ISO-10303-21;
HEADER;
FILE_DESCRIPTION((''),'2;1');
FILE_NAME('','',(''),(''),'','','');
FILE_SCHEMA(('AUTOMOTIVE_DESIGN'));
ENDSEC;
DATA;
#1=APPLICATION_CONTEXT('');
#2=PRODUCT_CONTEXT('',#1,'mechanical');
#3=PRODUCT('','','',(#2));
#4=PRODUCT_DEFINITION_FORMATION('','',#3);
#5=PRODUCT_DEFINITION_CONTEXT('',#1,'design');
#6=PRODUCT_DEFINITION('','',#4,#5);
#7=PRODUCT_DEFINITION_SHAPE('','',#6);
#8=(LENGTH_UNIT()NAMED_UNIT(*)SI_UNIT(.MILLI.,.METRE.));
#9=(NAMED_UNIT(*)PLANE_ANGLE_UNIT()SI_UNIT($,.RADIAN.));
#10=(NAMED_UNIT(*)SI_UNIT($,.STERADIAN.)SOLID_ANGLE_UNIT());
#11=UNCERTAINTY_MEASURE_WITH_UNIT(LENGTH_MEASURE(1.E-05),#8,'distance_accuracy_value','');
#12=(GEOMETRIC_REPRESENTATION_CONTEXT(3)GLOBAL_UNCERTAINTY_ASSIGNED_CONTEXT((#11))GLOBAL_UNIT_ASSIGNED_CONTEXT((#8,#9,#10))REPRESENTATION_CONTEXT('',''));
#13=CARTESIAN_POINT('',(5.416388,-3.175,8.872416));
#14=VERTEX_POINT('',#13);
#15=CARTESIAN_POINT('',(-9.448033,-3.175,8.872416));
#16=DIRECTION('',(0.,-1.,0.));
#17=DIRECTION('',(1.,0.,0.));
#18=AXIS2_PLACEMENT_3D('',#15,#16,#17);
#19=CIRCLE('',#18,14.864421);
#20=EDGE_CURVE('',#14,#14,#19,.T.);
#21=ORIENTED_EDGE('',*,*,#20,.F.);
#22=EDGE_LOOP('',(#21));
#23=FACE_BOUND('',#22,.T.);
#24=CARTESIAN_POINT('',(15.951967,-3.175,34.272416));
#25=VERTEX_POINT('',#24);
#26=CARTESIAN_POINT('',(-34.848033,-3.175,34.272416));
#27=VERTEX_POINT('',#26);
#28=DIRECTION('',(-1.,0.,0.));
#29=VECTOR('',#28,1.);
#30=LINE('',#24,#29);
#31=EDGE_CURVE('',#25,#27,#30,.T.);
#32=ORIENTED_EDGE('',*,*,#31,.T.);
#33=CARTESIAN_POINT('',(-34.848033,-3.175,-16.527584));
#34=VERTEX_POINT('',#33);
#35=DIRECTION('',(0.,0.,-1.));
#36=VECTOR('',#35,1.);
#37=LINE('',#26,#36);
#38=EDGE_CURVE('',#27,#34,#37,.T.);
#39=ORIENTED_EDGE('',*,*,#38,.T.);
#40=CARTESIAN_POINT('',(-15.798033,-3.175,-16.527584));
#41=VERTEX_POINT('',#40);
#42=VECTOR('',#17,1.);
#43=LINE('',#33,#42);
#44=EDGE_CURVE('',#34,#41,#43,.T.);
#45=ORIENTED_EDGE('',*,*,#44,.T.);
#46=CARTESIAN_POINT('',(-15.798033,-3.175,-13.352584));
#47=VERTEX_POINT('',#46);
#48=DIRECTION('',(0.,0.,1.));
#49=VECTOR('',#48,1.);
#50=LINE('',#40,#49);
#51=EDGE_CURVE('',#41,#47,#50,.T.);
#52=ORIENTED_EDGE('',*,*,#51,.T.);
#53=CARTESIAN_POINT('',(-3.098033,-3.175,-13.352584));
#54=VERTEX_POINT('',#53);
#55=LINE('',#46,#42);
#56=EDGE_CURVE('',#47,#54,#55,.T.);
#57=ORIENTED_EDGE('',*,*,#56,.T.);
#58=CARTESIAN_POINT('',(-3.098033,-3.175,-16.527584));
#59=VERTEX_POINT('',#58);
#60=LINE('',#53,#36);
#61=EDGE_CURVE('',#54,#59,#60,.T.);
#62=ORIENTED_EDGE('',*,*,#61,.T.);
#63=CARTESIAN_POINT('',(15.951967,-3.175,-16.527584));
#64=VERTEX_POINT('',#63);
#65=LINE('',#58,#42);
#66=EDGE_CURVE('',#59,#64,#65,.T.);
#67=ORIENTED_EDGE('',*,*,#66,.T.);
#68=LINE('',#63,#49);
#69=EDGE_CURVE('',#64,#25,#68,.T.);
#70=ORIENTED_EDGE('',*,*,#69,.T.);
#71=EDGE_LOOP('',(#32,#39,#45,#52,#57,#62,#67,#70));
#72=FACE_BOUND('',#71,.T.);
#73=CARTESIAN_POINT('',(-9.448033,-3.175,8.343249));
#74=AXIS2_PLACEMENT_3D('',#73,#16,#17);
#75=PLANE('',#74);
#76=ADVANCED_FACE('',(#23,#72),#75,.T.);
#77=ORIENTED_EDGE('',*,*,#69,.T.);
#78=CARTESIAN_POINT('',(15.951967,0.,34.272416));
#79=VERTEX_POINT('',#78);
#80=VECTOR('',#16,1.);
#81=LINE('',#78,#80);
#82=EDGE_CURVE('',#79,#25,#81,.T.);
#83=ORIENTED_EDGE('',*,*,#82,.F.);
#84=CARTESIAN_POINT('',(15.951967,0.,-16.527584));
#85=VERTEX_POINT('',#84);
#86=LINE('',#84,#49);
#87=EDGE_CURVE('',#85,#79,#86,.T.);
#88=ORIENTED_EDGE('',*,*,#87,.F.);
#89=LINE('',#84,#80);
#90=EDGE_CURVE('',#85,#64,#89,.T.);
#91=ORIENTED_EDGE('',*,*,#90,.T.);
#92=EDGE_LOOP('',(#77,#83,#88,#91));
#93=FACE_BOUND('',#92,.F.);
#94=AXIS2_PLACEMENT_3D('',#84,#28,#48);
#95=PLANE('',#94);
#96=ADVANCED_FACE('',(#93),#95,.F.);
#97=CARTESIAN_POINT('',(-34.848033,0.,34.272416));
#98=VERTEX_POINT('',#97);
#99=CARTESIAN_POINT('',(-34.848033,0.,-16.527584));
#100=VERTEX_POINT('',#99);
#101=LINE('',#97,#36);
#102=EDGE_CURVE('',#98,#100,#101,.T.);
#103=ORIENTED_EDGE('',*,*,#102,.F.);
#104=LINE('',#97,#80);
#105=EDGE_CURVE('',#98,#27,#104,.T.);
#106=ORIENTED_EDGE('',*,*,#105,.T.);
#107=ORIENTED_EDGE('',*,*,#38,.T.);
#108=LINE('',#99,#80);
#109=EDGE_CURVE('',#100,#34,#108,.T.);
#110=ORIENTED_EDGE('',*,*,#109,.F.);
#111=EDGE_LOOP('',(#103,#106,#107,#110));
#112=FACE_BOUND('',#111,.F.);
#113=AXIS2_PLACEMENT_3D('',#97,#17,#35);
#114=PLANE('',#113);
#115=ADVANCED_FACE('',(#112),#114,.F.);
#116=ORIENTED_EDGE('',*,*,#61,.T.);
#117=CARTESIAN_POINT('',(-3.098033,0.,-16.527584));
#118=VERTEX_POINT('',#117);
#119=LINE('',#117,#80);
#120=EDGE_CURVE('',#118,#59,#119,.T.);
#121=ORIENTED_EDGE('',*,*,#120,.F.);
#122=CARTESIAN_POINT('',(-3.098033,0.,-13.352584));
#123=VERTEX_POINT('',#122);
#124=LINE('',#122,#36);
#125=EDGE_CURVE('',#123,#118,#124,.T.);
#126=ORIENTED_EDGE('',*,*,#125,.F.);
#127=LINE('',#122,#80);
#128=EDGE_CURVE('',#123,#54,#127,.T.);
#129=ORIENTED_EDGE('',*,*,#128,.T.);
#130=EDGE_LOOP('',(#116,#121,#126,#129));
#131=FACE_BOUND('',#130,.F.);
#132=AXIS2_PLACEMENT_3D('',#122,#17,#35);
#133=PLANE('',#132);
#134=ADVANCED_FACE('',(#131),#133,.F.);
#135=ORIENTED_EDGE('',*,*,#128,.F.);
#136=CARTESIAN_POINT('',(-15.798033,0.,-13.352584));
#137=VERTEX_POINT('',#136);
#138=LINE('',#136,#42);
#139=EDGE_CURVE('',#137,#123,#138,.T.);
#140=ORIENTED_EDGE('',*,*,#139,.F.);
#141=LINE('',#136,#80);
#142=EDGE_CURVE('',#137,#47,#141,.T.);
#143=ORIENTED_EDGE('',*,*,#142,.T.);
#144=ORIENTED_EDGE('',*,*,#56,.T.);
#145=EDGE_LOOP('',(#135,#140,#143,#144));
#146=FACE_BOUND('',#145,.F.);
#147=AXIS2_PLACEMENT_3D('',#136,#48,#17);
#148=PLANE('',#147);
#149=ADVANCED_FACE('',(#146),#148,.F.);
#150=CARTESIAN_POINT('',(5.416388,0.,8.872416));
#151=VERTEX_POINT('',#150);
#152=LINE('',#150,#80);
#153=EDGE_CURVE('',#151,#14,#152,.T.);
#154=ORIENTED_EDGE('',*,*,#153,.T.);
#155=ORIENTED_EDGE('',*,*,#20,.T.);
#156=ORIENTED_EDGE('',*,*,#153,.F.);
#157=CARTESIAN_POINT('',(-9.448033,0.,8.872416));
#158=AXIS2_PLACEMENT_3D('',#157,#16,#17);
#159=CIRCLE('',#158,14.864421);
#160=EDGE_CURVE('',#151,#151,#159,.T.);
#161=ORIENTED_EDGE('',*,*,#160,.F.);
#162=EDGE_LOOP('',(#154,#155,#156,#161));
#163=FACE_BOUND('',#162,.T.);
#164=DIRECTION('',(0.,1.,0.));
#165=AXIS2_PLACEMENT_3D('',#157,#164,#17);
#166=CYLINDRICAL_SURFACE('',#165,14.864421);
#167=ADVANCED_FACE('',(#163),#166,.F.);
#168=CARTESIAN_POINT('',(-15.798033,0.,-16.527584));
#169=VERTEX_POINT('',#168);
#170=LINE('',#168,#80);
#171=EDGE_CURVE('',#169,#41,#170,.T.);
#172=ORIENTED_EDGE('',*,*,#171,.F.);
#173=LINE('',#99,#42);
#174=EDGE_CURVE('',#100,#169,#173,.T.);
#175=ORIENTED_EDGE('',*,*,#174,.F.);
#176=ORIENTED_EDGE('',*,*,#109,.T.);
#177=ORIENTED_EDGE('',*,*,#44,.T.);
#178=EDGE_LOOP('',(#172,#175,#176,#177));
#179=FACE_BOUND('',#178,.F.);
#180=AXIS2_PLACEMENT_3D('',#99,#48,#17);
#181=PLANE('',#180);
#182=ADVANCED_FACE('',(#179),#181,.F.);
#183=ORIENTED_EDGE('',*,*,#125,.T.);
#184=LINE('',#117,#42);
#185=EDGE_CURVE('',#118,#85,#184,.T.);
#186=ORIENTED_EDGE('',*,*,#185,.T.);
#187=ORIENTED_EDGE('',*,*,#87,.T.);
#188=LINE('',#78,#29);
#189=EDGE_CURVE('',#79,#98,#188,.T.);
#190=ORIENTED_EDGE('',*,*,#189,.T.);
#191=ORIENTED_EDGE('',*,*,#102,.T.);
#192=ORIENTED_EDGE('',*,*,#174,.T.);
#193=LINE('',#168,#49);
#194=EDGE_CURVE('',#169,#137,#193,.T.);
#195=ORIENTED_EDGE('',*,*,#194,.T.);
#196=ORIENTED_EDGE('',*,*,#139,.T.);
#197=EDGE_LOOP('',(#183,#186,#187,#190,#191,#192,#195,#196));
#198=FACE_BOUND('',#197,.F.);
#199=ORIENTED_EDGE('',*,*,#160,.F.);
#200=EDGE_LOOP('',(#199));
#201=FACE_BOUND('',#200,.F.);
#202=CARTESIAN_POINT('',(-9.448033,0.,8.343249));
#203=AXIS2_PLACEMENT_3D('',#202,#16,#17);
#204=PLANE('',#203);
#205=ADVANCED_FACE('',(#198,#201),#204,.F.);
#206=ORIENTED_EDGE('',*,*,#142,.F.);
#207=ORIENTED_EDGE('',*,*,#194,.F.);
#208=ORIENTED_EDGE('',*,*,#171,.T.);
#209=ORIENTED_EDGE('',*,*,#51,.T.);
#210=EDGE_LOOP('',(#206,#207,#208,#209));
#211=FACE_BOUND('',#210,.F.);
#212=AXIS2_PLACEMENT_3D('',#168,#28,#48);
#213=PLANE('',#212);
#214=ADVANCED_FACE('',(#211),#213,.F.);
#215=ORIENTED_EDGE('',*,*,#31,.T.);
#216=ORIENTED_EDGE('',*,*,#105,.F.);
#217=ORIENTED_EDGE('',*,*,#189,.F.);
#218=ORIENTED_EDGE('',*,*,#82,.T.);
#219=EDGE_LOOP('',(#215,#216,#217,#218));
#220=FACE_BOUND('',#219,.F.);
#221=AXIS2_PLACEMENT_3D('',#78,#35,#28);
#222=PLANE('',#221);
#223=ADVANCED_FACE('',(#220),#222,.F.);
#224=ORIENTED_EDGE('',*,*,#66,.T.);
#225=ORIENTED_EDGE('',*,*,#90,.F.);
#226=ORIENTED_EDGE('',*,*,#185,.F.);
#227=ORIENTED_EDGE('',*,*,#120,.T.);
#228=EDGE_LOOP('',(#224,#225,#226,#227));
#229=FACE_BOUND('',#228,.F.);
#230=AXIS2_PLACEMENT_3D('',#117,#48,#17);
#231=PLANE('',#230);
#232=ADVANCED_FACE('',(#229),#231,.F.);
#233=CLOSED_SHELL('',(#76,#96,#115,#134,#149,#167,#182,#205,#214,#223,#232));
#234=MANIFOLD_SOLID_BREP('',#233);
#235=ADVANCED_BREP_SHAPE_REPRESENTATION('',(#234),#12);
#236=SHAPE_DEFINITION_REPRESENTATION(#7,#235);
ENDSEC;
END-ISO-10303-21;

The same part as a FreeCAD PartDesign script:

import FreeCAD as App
import Part
import Sketcher
Q = App.Units.Quantity


def add_polygon(sketch, points):
    """Adds a closed chain of lines whose ends are joined by coincident constraints."""
    first, n = sketch.GeometryCount, len(points)
    for a, b in zip(points, points[1:] + points[:1]):
        sketch.addGeometry(Part.LineSegment(App.Vector(*a, 0), App.Vector(*b, 0)), False)
    for i in range(n):
        sketch.addConstraint(Sketcher.Constraint("Coincident", first + i, 2, first + (i + 1) % n, 1))

doc = App.newDocument("Part")
params = doc.addObject("Spreadsheet::Sheet", "Params")
for row, (alias, value) in enumerate([
    ("sketch1_width", "2 in"),
    ("sketch1_width2", "0.5 in"),
    ("sketch1_height", "0.125 in"),
    ("pad1_length", "0.125 in"),
], start=1):
    params.set(f"A{row}", alias)
    params.set(f"B{row}", "=" + value)
    params.setAlias(f"B{row}", alias)

body = doc.addObject("PartDesign::Body", "Body")

# Sketch on XZ plane
sketch1 = body.newObject("Sketcher::SketchObject", "Sketch")
sketch1.AttachmentSupport = (doc.getObject("XZ_Plane"), [""])
sketch1.MapMode = "FlatFace"
add_polygon(sketch1, [(16, 34.3), (-34.8, 34.3), (-34.8, -16.5), (-15.8, -16.5), (-15.8, -13.4), (-3.1, -13.4), (-3.1, -16.5), (16, -16.5)])  # lines 0-7
sketch1.addGeometry(Part.Circle(App.Vector(-9.4, 8.9, 0), App.Vector(0, 0, 1), 14.9), False)  # 8
sketch1.addConstraint(Sketcher.Constraint("Horizontal", 0))
sketch1.addConstraint(Sketcher.Constraint("Vertical", 1))
sketch1.addConstraint(Sketcher.Constraint("Horizontal", 2))
sketch1.addConstraint(Sketcher.Constraint("Vertical", 3))
sketch1.addConstraint(Sketcher.Constraint("Horizontal", 4))
sketch1.addConstraint(Sketcher.Constraint("Vertical", 5))
sketch1.addConstraint(Sketcher.Constraint("Horizontal", 6))
sketch1.addConstraint(Sketcher.Constraint("Vertical", 7))
sketch1.addConstraint(Sketcher.Constraint("Horizontal", 2, 2, 5, 2))
sketch1.addConstraint(Sketcher.Constraint("Equal", 2, 6))
sketch1.addConstraint(Sketcher.Constraint("Equal", 0, 1))
sketch1.addConstraint(Sketcher.Constraint("DistanceX", 0, 2, 0, 1, Q("2 in")))
sketch1.addConstraint(Sketcher.Constraint("DistanceX", 4, 1, 4, 2, Q("0.5 in")))
sketch1.addConstraint(Sketcher.Constraint("DistanceX", 0, 2, 8, 3, Q("1 in")))
sketch1.addConstraint(Sketcher.Constraint("DistanceY", 8, 3, 0, 2, Q("1 in")))
sketch1.addConstraint(Sketcher.Constraint("DistanceY", 3, 1, 3, 2, Q("0.125 in")))
sketch1.addConstraint(Sketcher.Constraint("Diameter", 8, 29.728842))
sketch1.addConstraint(Sketcher.Constraint("DistanceX", 8, 3, -1, 1, 9.448033))
sketch1.addConstraint(Sketcher.Constraint("DistanceY", -1, 1, 8, 3, 8.872416))
sketch1.setExpression("Constraints[19]", "Params.sketch1_width")
sketch1.setExpression("Constraints[20]", "Params.sketch1_width2")
sketch1.setExpression("Constraints[23]", "Params.sketch1_height")
pad1 = body.newObject("PartDesign::Pad", "Pad")
pad1.Profile = sketch1
pad1.setExpression("Length", "Params.pad1_length")

doc.recompute()
